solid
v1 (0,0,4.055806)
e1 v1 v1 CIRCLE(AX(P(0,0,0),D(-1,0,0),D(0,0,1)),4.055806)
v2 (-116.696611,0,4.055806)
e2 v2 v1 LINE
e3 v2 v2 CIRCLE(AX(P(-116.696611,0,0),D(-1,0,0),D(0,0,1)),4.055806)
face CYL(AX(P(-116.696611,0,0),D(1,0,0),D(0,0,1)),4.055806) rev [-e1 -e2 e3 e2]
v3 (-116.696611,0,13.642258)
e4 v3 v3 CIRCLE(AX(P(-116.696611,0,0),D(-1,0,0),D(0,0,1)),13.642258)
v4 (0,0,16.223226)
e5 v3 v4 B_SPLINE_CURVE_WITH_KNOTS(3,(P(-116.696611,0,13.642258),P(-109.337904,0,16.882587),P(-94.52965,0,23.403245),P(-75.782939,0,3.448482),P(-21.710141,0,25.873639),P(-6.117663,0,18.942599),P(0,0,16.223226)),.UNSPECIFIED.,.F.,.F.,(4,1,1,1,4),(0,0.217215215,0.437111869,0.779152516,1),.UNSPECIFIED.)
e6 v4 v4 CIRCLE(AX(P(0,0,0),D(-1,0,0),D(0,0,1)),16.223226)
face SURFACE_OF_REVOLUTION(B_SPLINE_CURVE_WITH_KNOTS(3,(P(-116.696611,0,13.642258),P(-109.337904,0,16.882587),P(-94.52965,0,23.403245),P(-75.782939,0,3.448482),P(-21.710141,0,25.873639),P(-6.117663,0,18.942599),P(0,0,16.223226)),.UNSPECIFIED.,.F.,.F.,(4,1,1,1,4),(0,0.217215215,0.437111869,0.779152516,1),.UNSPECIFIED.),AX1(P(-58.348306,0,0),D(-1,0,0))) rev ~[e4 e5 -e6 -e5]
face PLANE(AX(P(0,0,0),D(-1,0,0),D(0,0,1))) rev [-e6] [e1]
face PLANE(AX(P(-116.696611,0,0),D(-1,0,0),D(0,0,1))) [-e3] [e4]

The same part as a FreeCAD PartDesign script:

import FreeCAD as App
import Part
import Sketcher

V = App.Vector

doc = App.newDocument("Part")
params = doc.addObject("Spreadsheet::Sheet", "Params")
for row, (alias, value) in enumerate([
    ("revolution_angle", "360 deg"),
], start=1):
    params.set(f"A{row}", alias)
    params.set(f"B{row}", "=" + value)
    params.setAlias(f"B{row}", alias)

body = doc.addObject("PartDesign::Body", "Body")

# Sketch on XZ plane
sketch1 = body.newObject("Sketcher::SketchObject", "Sketch")
sketch1.AttachmentSupport = (doc.getObject("XZ_Plane"), [""])
sketch1.MapMode = "FlatFace"
sketch1.addGeometry([
    Part.LineSegment(V(-116.696611, 4.055806, 0), V(0, 4.055806, 0)),
    Part.LineSegment(V(0, 4.055806, 0), V(0, 16.223226, 0)),
    Part.BSplineCurve([V(-116.696611, 13.642258, 0), V(-109.337904, 16.882587, 0), V(-94.52965, 23.403245, 0), V(-75.782939, 3.448482, 0), V(-21.710141, 25.873639, 0), V(-6.117663, 18.942599, 0), V(0, 16.223226, 0)], [4, 1, 1, 1, 4], [0, 0.217215215, 0.437111869, 0.779152516, 1], False, 3, [1, 1, 1, 1, 1, 1, 1], False),
    Part.LineSegment(V(-116.696611, 13.642258, 0), V(-116.696611, 4.055806, 0)),
], False)
sketch1.addConstraint([
    Sketcher.Constraint("Block", 2),
    Sketcher.Constraint("Coincident", 0, 2, 1, 1),
    Sketcher.Constraint("Coincident", 1, 2, 2, 2),
    Sketcher.Constraint("Coincident", 2, 1, 3, 1),
    Sketcher.Constraint("Coincident", 3, 2, 0, 1),
    Sketcher.Constraint("Horizontal", 0),
    Sketcher.Constraint("Vertical", 1),
    Sketcher.Constraint("Vertical", 3),
    Sketcher.Constraint("DistanceY", 1, 1, 1, 2, 12.167419),
])
revolution = body.newObject("PartDesign::Revolution", "Revolution")
revolution.Profile = sketch1
revolution.ReferenceAxis = (sketch1, ["H_Axis"])
revolution.setExpression("Angle", "Params.revolution_angle")

doc.recompute()
